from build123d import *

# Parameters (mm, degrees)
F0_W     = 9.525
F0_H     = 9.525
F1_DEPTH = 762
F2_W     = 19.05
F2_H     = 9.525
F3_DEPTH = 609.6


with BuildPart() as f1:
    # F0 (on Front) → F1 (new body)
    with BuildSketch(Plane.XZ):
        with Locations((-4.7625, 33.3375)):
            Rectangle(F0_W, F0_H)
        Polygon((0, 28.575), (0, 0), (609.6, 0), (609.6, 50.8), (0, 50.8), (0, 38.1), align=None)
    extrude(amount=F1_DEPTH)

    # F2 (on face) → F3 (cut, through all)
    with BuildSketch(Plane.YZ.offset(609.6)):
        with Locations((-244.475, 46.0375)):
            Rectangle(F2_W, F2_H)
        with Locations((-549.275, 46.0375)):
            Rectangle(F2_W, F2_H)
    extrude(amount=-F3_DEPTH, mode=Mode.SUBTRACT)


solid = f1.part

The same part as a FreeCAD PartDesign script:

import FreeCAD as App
import Part
import Sketcher

V = App.Vector
Q = App.Units.Quantity


def add_polygon(sketch, points):
    """Adds a closed chain of lines whose ends are joined by coincident constraints."""
    first, n = sketch.GeometryCount, len(points)
    for a, b in zip(points, points[1:] + points[:1]):
        sketch.addGeometry(Part.LineSegment(App.Vector(*a, 0), App.Vector(*b, 0)), False)
    for i in range(n):
        sketch.addConstraint(Sketcher.Constraint("Coincident", first + i, 2, first + (i + 1) % n, 1))

doc = App.newDocument("Part")
params = doc.addObject("Spreadsheet::Sheet", "Params")
for row, (alias, value) in enumerate([
    ("sketch1_width", "24 in"),
    ("sketch1_height", "2 in"),
    ("sketch1_height2", "0.5 in"),
    ("sketch1_width2", "0.375 in"),
    ("pad1_length", "30 in"),
    ("sketch2_width", "0.75 in"),
    ("sketch2_height", "0.375 in"),
], start=1):
    params.set(f"A{row}", alias)
    params.set(f"B{row}", "=" + value)
    params.setAlias(f"B{row}", alias)

body = doc.addObject("PartDesign::Body", "Body")

sketch1 = body.newObject("Sketcher::SketchObject", "Sketch")
sketch1.AttachmentSupport = (doc.getObject("XZ_Plane"), [""])
sketch1.MapMode = "FlatFace"
add_polygon(sketch1, [(-9.525, 38.1), (-9.525, 28.575), (0, 28.575), (0, 0), (609.6, 0), (609.6, 50.8), (0, 50.8), (0, 38.1)])
sketch1.addConstraint(Sketcher.Constraint("Vertical", 0))
sketch1.addConstraint(Sketcher.Constraint("Horizontal", 1))
sketch1.addConstraint(Sketcher.Constraint("Vertical", 2))
sketch1.addConstraint(Sketcher.Constraint("Horizontal", 3))
sketch1.addConstraint(Sketcher.Constraint("Vertical", 4))
sketch1.addConstraint(Sketcher.Constraint("Horizontal", 5))
sketch1.addConstraint(Sketcher.Constraint("Vertical", 6))
sketch1.addConstraint(Sketcher.Constraint("Horizontal", 7))
sketch1.addConstraint(Sketcher.Constraint("Coincident", 2, 2, -1, 1))
sketch1.addConstraint(Sketcher.Constraint("PointOnObject", 5, 2, -2))
sketch1.addConstraint(Sketcher.Constraint("Equal", 7, 0))
sketch1.addConstraint(Sketcher.Constraint("DistanceX", 3, 1, 3, 2, Q("24 in")))
sketch1.addConstraint(Sketcher.Constraint("DistanceY", 4, 1, 4, 2, Q("2 in")))
sketch1.addConstraint(Sketcher.Constraint("DistanceY", 6, 2, 6, 1, Q("0.5 in")))
sketch1.addConstraint(Sketcher.Constraint("DistanceX", 1, 1, 1, 2, Q("0.375 in")))
sketch1.setExpression("Constraints[19]", "Params.sketch1_width")
sketch1.setExpression("Constraints[20]", "Params.sketch1_height")
sketch1.setExpression("Constraints[21]", "Params.sketch1_height2")
sketch1.setExpression("Constraints[22]", "Params.sketch1_width2")
pad1 = body.newObject("PartDesign::Pad", "Pad")
pad1.Profile = sketch1
pad1.setExpression("Length", "Params.pad1_length")

sketch2 = body.newObject("Sketcher::SketchObject", "Sketch001")
sketch2.AttachmentSupport = (doc.getObject("YZ_Plane"), [""])
sketch2.MapMode = "FlatFace"
sketch2.AttachmentOffset = App.Placement(V(0, 0, 24 * 25.4), App.Rotation())
add_polygon(sketch2, [(-254, 50.8), (-254, 41.275), (-234.95, 41.275), (-234.95, 50.8)])
add_polygon(sketch2, [(-558.8, 50.8), (-558.8, 41.275), (-539.75, 41.275), (-539.75, 50.8)])
sketch2.addConstraint(Sketcher.Constraint("Vertical", 0))
sketch2.addConstraint(Sketcher.Constraint("Horizontal", 1))
sketch2.addConstraint(Sketcher.Constraint("Vertical", 2))
sketch2.addConstraint(Sketcher.Constraint("Horizontal", 3))
sketch2.addConstraint(Sketcher.Constraint("Vertical", 4))
sketch2.addConstraint(Sketcher.Constraint("Horizontal", 5))
sketch2.addConstraint(Sketcher.Constraint("Vertical", 6))
sketch2.addConstraint(Sketcher.Constraint("Horizontal", 7))
sketch2.addConstraint(Sketcher.Constraint("Horizontal", 1, 2, 4, 2))
sketch2.addConstraint(Sketcher.Constraint("Horizontal", 3, 2, 6, 2))
sketch2.addConstraint(Sketcher.Constraint("Equal", 3, 5))
sketch2.addConstraint(Sketcher.Constraint("DistanceX", 0, 2, -1, 1, Q("10 in")))
sketch2.addConstraint(Sketcher.Constraint("DistanceY", -1, 1, 2, 2, Q("2 in")))
sketch2.addConstraint(Sketcher.Constraint("DistanceX", 4, 2, -1, 1, Q("22 in")))
sketch2.addConstraint(Sketcher.Constraint("DistanceX", 1, 1, 1, 2, Q("0.75 in")))
sketch2.addConstraint(Sketcher.Constraint("DistanceY", 0, 2, 0, 1, Q("0.375 in")))
sketch2.setExpression("Constraints[22]", "Params.sketch2_width")
sketch2.setExpression("Constraints[23]", "Params.sketch2_height")
pocket1 = body.newObject("PartDesign::Pocket", "Pocket")
pocket1.Profile = sketch2
pocket1.Type = "ThroughAll"

doc.recompute()
